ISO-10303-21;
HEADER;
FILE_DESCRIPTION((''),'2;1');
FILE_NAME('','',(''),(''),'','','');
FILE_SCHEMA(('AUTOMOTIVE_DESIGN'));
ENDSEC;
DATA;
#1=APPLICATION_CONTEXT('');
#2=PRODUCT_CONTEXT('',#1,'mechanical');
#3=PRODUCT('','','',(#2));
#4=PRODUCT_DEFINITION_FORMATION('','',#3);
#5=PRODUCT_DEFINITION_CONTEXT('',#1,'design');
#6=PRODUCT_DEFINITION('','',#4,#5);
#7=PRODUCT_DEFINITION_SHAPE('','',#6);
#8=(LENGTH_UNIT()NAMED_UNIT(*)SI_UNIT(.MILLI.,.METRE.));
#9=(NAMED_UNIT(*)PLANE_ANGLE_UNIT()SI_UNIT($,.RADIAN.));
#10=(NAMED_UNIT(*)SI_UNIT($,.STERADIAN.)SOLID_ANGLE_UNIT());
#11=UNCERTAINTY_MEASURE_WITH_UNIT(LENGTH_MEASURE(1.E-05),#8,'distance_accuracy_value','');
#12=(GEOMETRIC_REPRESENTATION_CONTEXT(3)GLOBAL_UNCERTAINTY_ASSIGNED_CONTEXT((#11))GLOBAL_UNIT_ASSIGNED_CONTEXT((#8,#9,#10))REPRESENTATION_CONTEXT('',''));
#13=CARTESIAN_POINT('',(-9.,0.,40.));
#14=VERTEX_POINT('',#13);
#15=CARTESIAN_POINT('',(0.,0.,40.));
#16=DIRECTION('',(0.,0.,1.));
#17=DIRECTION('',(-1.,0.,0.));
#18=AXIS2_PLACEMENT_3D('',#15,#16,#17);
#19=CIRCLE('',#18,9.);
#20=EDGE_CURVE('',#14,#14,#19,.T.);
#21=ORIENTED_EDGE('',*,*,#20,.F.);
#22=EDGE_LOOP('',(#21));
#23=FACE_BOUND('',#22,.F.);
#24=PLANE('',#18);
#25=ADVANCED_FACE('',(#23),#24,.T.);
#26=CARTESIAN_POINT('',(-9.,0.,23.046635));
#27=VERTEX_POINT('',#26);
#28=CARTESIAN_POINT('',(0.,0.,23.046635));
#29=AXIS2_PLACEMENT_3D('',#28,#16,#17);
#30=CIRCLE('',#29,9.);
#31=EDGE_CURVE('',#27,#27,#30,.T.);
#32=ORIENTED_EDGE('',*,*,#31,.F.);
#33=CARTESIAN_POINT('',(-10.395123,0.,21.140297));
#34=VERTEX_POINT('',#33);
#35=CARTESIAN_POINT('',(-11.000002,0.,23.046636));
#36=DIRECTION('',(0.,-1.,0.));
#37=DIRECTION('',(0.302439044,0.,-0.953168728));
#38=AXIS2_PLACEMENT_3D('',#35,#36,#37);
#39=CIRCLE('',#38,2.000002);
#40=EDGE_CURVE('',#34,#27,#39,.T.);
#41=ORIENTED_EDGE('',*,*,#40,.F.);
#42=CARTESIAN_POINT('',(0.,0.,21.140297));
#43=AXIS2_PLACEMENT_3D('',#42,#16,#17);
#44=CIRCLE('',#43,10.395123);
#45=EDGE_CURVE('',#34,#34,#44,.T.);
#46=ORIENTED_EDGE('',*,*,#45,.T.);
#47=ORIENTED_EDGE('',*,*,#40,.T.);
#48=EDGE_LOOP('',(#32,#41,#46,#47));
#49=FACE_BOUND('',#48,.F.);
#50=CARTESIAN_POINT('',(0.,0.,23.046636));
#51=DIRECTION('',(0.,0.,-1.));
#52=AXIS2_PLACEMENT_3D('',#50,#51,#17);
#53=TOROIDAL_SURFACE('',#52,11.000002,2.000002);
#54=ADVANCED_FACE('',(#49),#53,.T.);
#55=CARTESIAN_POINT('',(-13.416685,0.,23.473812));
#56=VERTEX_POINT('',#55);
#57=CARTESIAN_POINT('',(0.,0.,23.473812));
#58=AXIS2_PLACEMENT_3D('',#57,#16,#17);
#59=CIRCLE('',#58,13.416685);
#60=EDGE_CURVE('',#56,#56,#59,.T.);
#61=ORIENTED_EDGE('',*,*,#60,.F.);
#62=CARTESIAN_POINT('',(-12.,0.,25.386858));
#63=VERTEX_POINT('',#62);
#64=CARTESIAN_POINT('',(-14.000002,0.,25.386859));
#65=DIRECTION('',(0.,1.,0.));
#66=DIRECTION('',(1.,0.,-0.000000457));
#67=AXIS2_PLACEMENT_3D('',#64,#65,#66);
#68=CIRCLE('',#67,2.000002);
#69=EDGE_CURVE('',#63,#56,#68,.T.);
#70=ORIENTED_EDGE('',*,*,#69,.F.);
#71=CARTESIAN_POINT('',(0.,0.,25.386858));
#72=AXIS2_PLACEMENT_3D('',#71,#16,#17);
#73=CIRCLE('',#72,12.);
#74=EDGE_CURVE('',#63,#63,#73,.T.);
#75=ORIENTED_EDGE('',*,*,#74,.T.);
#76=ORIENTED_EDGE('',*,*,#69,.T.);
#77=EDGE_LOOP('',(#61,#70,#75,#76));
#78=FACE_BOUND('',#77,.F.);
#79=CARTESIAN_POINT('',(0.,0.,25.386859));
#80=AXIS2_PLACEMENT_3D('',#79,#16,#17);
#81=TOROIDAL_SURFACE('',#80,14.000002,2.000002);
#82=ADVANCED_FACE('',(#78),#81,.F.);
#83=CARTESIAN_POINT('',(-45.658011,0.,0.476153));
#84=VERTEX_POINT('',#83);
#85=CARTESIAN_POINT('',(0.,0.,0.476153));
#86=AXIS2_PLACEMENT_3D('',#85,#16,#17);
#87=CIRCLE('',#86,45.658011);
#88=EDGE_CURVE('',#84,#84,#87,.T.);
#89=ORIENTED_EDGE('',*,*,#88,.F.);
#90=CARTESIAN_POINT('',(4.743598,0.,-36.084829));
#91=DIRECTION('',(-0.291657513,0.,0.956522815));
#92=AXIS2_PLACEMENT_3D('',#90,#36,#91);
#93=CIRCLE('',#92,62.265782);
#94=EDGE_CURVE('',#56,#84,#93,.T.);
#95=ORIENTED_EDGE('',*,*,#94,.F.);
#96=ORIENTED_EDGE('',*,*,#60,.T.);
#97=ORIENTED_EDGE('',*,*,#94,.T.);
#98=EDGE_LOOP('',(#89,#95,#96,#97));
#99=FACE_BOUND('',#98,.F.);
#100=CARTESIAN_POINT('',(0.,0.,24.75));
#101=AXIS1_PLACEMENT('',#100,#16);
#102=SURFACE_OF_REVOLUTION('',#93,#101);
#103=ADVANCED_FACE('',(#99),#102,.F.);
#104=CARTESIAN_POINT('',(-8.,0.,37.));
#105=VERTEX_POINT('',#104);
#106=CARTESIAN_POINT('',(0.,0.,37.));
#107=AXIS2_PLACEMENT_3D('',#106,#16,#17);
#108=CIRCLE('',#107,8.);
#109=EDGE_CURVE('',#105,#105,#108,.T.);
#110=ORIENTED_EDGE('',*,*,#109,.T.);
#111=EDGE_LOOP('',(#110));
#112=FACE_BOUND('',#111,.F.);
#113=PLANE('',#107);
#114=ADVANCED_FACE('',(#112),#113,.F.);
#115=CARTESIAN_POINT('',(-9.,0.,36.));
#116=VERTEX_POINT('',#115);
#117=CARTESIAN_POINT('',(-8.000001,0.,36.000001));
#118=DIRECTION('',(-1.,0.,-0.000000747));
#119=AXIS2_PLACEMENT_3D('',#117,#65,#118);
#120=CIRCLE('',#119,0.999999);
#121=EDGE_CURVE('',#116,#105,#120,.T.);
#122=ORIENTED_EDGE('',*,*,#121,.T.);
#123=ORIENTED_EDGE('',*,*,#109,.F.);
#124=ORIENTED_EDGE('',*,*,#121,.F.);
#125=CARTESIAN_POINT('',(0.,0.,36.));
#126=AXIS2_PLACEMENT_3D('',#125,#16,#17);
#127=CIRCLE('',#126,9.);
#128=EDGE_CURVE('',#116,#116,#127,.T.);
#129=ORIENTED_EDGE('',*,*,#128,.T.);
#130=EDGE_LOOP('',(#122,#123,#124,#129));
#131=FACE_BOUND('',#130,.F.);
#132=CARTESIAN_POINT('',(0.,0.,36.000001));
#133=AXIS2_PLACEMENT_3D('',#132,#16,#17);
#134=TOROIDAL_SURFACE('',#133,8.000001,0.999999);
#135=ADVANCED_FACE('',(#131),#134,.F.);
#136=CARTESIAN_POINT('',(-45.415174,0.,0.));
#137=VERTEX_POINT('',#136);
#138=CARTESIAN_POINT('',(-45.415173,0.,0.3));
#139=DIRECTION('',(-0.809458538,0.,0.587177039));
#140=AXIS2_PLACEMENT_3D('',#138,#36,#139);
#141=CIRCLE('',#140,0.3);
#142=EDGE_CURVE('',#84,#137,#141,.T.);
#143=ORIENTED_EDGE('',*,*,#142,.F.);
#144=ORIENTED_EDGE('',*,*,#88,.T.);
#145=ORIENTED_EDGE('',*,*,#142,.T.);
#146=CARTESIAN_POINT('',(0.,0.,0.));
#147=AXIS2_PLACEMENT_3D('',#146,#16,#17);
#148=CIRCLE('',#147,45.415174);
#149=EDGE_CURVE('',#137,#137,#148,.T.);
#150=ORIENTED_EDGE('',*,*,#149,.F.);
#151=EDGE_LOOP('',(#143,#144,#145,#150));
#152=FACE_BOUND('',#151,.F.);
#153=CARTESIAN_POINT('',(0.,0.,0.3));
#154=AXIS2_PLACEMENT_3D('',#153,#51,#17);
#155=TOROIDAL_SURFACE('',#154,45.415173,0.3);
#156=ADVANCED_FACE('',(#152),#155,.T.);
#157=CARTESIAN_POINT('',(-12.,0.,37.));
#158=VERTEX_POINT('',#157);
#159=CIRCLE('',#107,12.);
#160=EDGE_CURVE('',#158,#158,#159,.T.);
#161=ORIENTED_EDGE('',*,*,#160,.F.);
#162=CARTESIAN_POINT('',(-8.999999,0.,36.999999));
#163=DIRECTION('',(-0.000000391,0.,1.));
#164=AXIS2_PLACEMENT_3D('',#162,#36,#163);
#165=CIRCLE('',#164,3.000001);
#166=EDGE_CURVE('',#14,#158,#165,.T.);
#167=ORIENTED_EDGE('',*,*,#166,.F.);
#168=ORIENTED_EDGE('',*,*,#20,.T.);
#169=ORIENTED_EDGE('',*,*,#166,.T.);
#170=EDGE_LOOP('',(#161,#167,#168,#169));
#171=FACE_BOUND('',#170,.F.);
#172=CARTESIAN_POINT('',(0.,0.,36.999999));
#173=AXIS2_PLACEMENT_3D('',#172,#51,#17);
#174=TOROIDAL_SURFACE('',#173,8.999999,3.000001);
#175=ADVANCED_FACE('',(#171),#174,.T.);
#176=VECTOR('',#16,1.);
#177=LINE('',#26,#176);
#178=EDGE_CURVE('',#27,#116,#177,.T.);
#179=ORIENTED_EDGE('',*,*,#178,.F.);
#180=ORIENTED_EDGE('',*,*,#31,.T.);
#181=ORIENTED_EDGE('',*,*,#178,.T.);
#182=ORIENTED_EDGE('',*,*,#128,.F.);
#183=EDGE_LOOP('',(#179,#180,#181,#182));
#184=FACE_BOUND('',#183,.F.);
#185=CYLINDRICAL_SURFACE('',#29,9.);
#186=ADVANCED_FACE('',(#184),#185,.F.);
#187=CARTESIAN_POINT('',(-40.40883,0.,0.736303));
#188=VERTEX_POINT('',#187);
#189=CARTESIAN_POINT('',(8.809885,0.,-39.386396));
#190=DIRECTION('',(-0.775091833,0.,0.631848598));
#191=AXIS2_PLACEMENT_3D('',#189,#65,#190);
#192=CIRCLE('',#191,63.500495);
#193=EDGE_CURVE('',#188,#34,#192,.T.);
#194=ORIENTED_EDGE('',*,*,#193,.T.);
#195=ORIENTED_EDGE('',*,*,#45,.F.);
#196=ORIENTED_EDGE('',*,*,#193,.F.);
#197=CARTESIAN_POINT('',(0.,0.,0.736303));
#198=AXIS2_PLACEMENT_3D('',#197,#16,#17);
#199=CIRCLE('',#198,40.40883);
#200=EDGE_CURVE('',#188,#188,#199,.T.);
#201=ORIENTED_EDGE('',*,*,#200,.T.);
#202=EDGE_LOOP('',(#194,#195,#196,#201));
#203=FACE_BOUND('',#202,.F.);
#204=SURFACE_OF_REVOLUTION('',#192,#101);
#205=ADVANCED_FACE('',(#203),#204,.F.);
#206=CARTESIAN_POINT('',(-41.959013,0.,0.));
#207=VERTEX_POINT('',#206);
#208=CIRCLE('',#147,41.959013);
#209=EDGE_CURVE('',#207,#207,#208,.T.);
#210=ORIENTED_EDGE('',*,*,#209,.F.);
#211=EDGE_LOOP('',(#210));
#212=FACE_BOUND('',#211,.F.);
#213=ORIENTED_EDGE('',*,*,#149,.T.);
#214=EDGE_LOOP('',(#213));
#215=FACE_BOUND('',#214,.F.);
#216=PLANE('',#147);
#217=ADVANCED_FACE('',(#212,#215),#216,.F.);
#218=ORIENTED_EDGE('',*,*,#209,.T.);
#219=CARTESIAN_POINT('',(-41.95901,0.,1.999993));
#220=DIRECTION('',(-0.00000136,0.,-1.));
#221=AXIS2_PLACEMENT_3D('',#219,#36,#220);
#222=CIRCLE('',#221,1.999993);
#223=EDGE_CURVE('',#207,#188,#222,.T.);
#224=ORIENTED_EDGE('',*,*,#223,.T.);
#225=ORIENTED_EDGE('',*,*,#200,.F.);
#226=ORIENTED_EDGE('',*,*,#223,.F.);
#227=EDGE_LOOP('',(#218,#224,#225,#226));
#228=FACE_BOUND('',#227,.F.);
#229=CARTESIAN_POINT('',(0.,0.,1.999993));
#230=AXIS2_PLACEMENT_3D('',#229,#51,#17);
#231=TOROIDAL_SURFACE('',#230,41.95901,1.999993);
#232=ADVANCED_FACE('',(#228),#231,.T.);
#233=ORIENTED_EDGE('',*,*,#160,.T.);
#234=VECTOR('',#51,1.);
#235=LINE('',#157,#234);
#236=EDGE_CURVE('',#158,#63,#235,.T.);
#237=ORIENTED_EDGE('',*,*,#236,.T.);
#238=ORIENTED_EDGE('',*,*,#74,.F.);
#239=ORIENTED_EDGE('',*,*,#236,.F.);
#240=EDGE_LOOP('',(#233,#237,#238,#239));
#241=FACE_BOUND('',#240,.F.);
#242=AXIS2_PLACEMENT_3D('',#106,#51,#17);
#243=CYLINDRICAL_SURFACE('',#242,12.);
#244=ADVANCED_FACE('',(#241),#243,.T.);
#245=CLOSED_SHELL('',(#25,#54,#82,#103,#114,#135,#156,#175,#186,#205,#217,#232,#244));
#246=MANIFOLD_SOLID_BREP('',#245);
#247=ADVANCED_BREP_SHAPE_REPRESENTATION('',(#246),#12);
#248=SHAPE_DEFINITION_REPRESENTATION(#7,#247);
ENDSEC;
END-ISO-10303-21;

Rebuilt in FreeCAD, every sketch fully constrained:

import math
import FreeCAD as App
import Part
import Sketcher
Q = App.Units.Quantity

doc = App.newDocument("Part")
body = doc.addObject("PartDesign::Body", "Body")

sketch1 = body.newObject("Sketcher::SketchObject", "Sketch")
sketch1.AttachmentSupport = (doc.getObject("XZ_Plane"), [""])
sketch1.MapMode = "FlatFace"
sketch1.addGeometry(Part.ArcOfCircle(Part.Circle(App.Vector(-14.000002, 25.386859, 0), App.Vector(0, 0, 1), 2.000002), math.radians(-73.042749), math.radians(-0.000026)), False)
sketch1.addGeometry(Part.ArcOfCircle(Part.Circle(App.Vector(4.743598, -36.084829, 0), App.Vector(0, 0, 1), 62.265782), math.radians(106.957215), math.radians(144.043126)), False)
sketch1.addGeometry(Part.ArcOfCircle(Part.Circle(App.Vector(-45.415173, 0.3, 0), App.Vector(0, 0, 1), 0.3), math.radians(144.043063), math.radians(269.999904)), False)
sketch1.addGeometry(Part.LineSegment(App.Vector(-45.415174, 0, 0), App.Vector(-41.959013, 0, 0)), False)
sketch1.addGeometry(Part.ArcOfCircle(Part.Circle(App.Vector(-41.95901, 1.999993, 0), App.Vector(0, 0, 1), 1.999993), math.radians(-90.000078), math.radians(-39.186532)), False)
sketch1.addGeometry(Part.ArcOfCircle(Part.Circle(App.Vector(8.809885, -39.386396, 0), App.Vector(0, 0, 1), 63.500495), math.radians(107.604137), math.radians(140.813359)), False)
sketch1.addGeometry(Part.ArcOfCircle(Part.Circle(App.Vector(-11.000002, 23.046636, 0), App.Vector(0, 0, 1), 2.000002), math.radians(-72.395843), math.radians(-0.000027)), False)
sketch1.addGeometry(Part.LineSegment(App.Vector(-9, 23.046635, 0), App.Vector(-9, 36, 0)), False)
sketch1.addGeometry(Part.ArcOfCircle(Part.Circle(App.Vector(-8.000001, 36.000001, 0), App.Vector(0, 0, 1), 0.999999), math.radians(89.999957), math.radians(180.000043)), False)
sketch1.addGeometry(Part.LineSegment(App.Vector(-8, 37, 0), App.Vector(0, 37, 0)), False)
sketch1.addGeometry(Part.LineSegment(App.Vector(0, 37, 0), App.Vector(0, 40, 0)), False)
sketch1.addGeometry(Part.LineSegment(App.Vector(0, 40, 0), App.Vector(-9, 40, 0)), False)
sketch1.addGeometry(Part.ArcOfCircle(Part.Circle(App.Vector(-8.999999, 36.999999, 0), App.Vector(0, 0, 1), 3.000001), math.radians(90.000022), math.radians(179.999978)), False)
sketch1.addGeometry(Part.LineSegment(App.Vector(-12, 37, 0), App.Vector(-12, 25.386858, 0)), False)
sketch1.addConstraint(Sketcher.Constraint("Coincident", 0, 1, 1, 1))
sketch1.addConstraint(Sketcher.Constraint("Coincident", 1, 2, 2, 1))
sketch1.addConstraint(Sketcher.Constraint("Coincident", 2, 2, 3, 1))
sketch1.addConstraint(Sketcher.Constraint("Coincident", 3, 2, 4, 1))
sketch1.addConstraint(Sketcher.Constraint("Coincident", 4, 2, 5, 2))
sketch1.addConstraint(Sketcher.Constraint("Coincident", 5, 1, 6, 1))
sketch1.addConstraint(Sketcher.Constraint("Coincident", 6, 2, 7, 1))
sketch1.addConstraint(Sketcher.Constraint("Coincident", 7, 2, 8, 2))
sketch1.addConstraint(Sketcher.Constraint("Coincident", 8, 1, 9, 1))
sketch1.addConstraint(Sketcher.Constraint("Coincident", 9, 2, 10, 1))
sketch1.addConstraint(Sketcher.Constraint("Coincident", 10, 2, 11, 1))
sketch1.addConstraint(Sketcher.Constraint("Coincident", 11, 2, 12, 1))
sketch1.addConstraint(Sketcher.Constraint("Coincident", 12, 2, 13, 1))
sketch1.addConstraint(Sketcher.Constraint("Coincident", 13, 2, 0, 2))
sketch1.addConstraint(Sketcher.Constraint("Horizontal", 3))
sketch1.addConstraint(Sketcher.Constraint("Vertical", 7))
sketch1.addConstraint(Sketcher.Constraint("Horizontal", 9))
sketch1.addConstraint(Sketcher.Constraint("Vertical", 10))
sketch1.addConstraint(Sketcher.Constraint("Horizontal", 11))
sketch1.addConstraint(Sketcher.Constraint("Vertical", 13))
sketch1.addConstraint(Sketcher.Constraint("PointOnObject", 2, 2, -1))
sketch1.addConstraint(Sketcher.Constraint("PointOnObject", 9, 2, -2))
sketch1.addConstraint(Sketcher.Constraint("Radius", 0, Q("2.000002 mm")))
sketch1.addConstraint(Sketcher.Constraint("Radius", 6, Q("2.000002 mm")))
sketch1.addConstraint(Sketcher.Constraint("Radius", 8, Q("0.999999 mm")))
sketch1.addConstraint(Sketcher.Constraint("Radius", 12, Q("3.000001 mm")))
sketch1.addConstraint(Sketcher.Constraint("Radius", 2, Q("0.3 mm")))
sketch1.addConstraint(Sketcher.Constraint("DistanceX", 9, 1, 9, 2, Q("8 mm")))
sketch1.addConstraint(Sketcher.Constraint("DistanceX", 11, 2, 11, 1, Q("9 mm")))
sketch1.addConstraint(Sketcher.Constraint("DistanceY", 10, 1, 10, 2, Q("3 mm")))
sketch1.addConstraint(Sketcher.Constraint("DistanceX", 0, 3, -1, 1, Q("14.000002 mm")))
sketch1.addConstraint(Sketcher.Constraint("DistanceX", 6, 3, -1, 1, Q("11.000002 mm")))
sketch1.addConstraint(Sketcher.Constraint("DistanceY", -1, 1, 8, 3, Q("36.000001 mm")))
sketch1.addConstraint(Sketcher.Constraint("DistanceY", -1, 1, 7, 2, Q("36 mm")))
sketch1.addConstraint(Sketcher.Constraint("DistanceY", -1, 1, 12, 2, Q("37 mm")))
sketch1.addConstraint(Sketcher.Constraint("Radius", 1, Q("62.265782 mm")))
sketch1.addConstraint(Sketcher.Constraint("Radius", 4, Q("1.999993 mm")))
sketch1.addConstraint(Sketcher.Constraint("Radius", 5, Q("63.500495 mm")))
sketch1.addConstraint(Sketcher.Constraint("DistanceX", 1, 2, 4, 3, Q("3.699001 mm")))
sketch1.addConstraint(Sketcher.Constraint("DistanceX", 1, 2, 3, 2, Q("3.698998 mm")))
sketch1.addConstraint(Sketcher.Constraint("DistanceX", 3, 1, 3, 2, Q("3.456161 mm")))
sketch1.addConstraint(Sketcher.Constraint("DistanceX", -1, 1, 1, 3, Q("4.743598 mm")))
sketch1.addConstraint(Sketcher.Constraint("DistanceY", 5, 1, 12, 3, Q("15.859702 mm")))
sketch1.addConstraint(Sketcher.Constraint("DistanceY", 7, 1, 7, 2, Q("12.953365 mm")))
sketch1.addConstraint(Sketcher.Constraint("DistanceY", 13, 2, 13, 1, Q("11.613142 mm")))
sketch1.addConstraint(Sketcher.Constraint("DistanceY", -1, 1, 0, 3, Q("25.386859 mm")))
sketch1.addConstraint(Sketcher.Constraint("DistanceX", 4, 3, -1, 1, Q("41.95901 mm")))
sketch1.addConstraint(Sketcher.Constraint("DistanceX", 4, 2, -1, 1, Q("40.40883 mm")))
sketch1.addConstraint(Sketcher.Constraint("DistanceY", 5, 3, 4, 3, Q("41.386388 mm")))
sketch1.addConstraint(Sketcher.Constraint("DistanceY", 0, 1, 8, 3, Q("12.526189 mm")))
revolution = body.newObject("PartDesign::Revolution", "Revolution")
revolution.Profile = sketch1
revolution.ReferenceAxis = (sketch1, ["V_Axis"])
revolution.Angle = 360

doc.recompute()
